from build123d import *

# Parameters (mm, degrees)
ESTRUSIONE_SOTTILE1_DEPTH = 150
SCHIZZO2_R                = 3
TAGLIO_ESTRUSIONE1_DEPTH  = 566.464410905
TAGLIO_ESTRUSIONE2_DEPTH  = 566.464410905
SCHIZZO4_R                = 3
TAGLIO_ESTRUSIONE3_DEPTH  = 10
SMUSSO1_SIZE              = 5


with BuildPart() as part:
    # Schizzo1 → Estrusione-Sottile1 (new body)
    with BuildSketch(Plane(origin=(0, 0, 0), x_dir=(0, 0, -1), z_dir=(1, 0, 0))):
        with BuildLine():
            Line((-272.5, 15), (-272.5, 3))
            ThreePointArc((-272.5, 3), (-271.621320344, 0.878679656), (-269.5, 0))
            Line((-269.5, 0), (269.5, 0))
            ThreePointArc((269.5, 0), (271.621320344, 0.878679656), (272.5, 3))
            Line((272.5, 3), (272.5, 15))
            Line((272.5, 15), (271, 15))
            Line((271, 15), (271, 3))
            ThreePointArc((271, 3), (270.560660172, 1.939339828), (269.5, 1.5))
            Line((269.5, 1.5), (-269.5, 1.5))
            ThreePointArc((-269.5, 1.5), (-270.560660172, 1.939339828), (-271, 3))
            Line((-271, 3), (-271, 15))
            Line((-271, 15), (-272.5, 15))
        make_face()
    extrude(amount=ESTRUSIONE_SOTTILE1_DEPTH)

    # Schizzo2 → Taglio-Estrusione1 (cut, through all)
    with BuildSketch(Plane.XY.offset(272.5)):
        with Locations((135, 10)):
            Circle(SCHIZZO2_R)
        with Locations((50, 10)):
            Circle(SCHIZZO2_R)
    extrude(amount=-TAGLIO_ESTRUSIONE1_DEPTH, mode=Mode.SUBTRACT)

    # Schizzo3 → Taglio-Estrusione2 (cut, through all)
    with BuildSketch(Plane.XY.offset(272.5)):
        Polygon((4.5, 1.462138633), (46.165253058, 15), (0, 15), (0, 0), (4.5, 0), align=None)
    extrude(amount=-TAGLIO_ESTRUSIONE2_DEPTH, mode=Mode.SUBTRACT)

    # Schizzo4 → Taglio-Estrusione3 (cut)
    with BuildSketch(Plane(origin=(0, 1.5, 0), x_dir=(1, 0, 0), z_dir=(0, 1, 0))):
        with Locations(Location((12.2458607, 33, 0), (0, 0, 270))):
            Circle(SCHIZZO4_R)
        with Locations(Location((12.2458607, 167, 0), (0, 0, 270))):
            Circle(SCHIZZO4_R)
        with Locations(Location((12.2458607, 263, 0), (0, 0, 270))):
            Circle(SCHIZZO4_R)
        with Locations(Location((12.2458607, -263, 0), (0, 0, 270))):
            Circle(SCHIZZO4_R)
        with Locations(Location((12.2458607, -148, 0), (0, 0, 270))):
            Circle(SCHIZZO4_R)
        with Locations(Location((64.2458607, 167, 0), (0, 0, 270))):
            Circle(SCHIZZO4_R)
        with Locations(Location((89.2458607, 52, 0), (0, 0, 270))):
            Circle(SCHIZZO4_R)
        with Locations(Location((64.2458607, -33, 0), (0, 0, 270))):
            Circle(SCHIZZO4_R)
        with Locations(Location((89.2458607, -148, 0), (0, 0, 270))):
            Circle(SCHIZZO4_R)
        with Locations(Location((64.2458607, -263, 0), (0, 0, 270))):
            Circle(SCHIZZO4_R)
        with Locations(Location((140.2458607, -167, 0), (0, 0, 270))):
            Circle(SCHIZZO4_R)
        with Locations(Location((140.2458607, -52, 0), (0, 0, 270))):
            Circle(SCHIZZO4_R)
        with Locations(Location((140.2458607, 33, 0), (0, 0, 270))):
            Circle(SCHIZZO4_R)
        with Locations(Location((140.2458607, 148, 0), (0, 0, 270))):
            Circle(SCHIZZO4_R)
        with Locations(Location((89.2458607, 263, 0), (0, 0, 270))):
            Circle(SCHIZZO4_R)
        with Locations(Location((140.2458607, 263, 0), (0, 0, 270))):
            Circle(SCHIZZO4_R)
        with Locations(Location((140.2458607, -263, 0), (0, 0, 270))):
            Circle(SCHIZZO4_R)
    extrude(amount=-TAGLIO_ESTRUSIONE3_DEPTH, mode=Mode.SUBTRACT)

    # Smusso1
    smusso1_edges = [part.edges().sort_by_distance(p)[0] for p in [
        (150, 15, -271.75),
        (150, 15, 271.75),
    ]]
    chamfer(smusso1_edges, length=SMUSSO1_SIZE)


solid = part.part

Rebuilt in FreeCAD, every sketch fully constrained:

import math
import FreeCAD as App
import Part
import Sketcher
from FreeCAD import Vector
Q = App.Units.Quantity


def edges_at(feature, points):
    """Names of the edges that pass closest to the given points."""
    edges = feature.Shape.Edges
    near = lambda p: min(range(len(edges)), key=lambda i: edges[i].distToShape(Part.Vertex(*p))[0])
    return sorted({f"Edge{near(p) + 1}" for p in points})

doc = App.newDocument("Part")
params = doc.addObject("Spreadsheet::Sheet", "Params")
for row, (alias, value) in enumerate([
    ("sketch1_radius", "3 mm"),
    ("sketch1_radius2", "1.5 mm"),
    ("sketch1_width", "12 mm"),
    ("sketch1_height", "539 mm"),
    ("pad1_length", "150 mm"),
    ("sketch2_diameter", "6 mm"),
    ("sketch3_height", "15 mm"),
    ("sketch3_width", "4.5 mm"),
    ("sketch4_diameter", "6 mm"),
    ("pocket3_length", "10 mm"),
    ("chamfer_size", "5 mm"),
], start=1):
    params.set(f"A{row}", alias)
    params.set(f"B{row}", "=" + value)
    params.setAlias(f"B{row}", alias)

body = doc.addObject("PartDesign::Body", "Body")

sketch1 = doc.addObject("Sketcher::SketchObject", "Sketch")
body.addObject(sketch1)
sketch1.AttachmentSupport = (doc.YZ_Plane, [""])
sketch1.MapMode = "FlatFace"
sketch1.addGeometry(Part.LineSegment(Vector(15, 272.5, 0), Vector(3, 272.5, 0)), False)
sketch1.addGeometry(Part.ArcOfCircle(Part.Circle(Vector(3, 269.5, 0), Vector(0, 0, 1), 3), math.radians(90), math.radians(180)), False)
sketch1.addGeometry(Part.LineSegment(Vector(0, 269.5, 0), Vector(0, -269.5, 0)), False)
sketch1.addGeometry(Part.ArcOfCircle(Part.Circle(Vector(3, -269.5, 0), Vector(0, 0, 1), 3), math.radians(180), math.radians(270)), False)
sketch1.addGeometry(Part.LineSegment(Vector(3, -272.5, 0), Vector(15, -272.5, 0)), False)
sketch1.addGeometry(Part.LineSegment(Vector(15, -272.5, 0), Vector(15, -271, 0)), False)
sketch1.addGeometry(Part.LineSegment(Vector(15, -271, 0), Vector(3, -271, 0)), False)
sketch1.addGeometry(Part.ArcOfCircle(Part.Circle(Vector(3, -269.5, 0), Vector(0, 0, 1), 1.5), math.radians(180), math.radians(270)), False)
sketch1.addGeometry(Part.LineSegment(Vector(1.5, -269.5, 0), Vector(1.5, 269.5, 0)), False)
sketch1.addGeometry(Part.ArcOfCircle(Part.Circle(Vector(3, 269.5, 0), Vector(0, 0, 1), 1.5), math.radians(90), math.radians(180)), False)
sketch1.addGeometry(Part.LineSegment(Vector(3, 271, 0), Vector(15, 271, 0)), False)
sketch1.addGeometry(Part.LineSegment(Vector(15, 271, 0), Vector(15, 272.5, 0)), False)
sketch1.addConstraint(Sketcher.Constraint("Tangent", 0, 2, 1, 1))
sketch1.addConstraint(Sketcher.Constraint("Tangent", 1, 2, 2, 1))
sketch1.addConstraint(Sketcher.Constraint("Tangent", 2, 2, 3, 1))
sketch1.addConstraint(Sketcher.Constraint("Tangent", 3, 2, 4, 1))
sketch1.addConstraint(Sketcher.Constraint("Coincident", 4, 2, 5, 1))
sketch1.addConstraint(Sketcher.Constraint("Coincident", 5, 2, 6, 1))
sketch1.addConstraint(Sketcher.Constraint("Tangent", 6, 2, 7, 2))
sketch1.addConstraint(Sketcher.Constraint("Tangent", 7, 1, 8, 1))
sketch1.addConstraint(Sketcher.Constraint("Tangent", 8, 2, 9, 2))
sketch1.addConstraint(Sketcher.Constraint("Tangent", 9, 1, 10, 1))
sketch1.addConstraint(Sketcher.Constraint("Coincident", 10, 2, 11, 1))
sketch1.addConstraint(Sketcher.Constraint("Coincident", 11, 2, 0, 1))
sketch1.addConstraint(Sketcher.Constraint("Horizontal", 0))
sketch1.addConstraint(Sketcher.Constraint("Vertical", 2))
sketch1.addConstraint(Sketcher.Constraint("Horizontal", 4))
sketch1.addConstraint(Sketcher.Constraint("Vertical", 5))
sketch1.addConstraint(Sketcher.Constraint("Horizontal", 6))
sketch1.addConstraint(Sketcher.Constraint("Vertical", 8))
sketch1.addConstraint(Sketcher.Constraint("Horizontal", 10))
sketch1.addConstraint(Sketcher.Constraint("Vertical", 11))
sketch1.addConstraint(Sketcher.Constraint("Coincident", 7, 3, 3, 3))
sketch1.addConstraint(Sketcher.Constraint("Coincident", 9, 3, 1, 3))
sketch1.addConstraint(Sketcher.Constraint("Equal", 1, 3))
sketch1.addConstraint(Sketcher.Constraint("Symmetric", 1, 2, 2, 2, -1, 1))
sketch1.addConstraint(Sketcher.Constraint("Vertical", 5, 2, 10, 2))
sketch1.addConstraint(Sketcher.Constraint("Radius", 1, 3.0))
sketch1.addConstraint(Sketcher.Constraint("Radius", 7, 1.5))
sketch1.addConstraint(Sketcher.Constraint("DistanceX", 0, 2, 0, 1, 12.0))
sketch1.addConstraint(Sketcher.Constraint("DistanceY", 2, 2, 2, 1, 539.0))
sketch1.setExpression("Constraints[25]", "Params.sketch1_radius")
sketch1.setExpression("Constraints[26]", "Params.sketch1_radius2")
sketch1.setExpression("Constraints[27]", "Params.sketch1_width")
sketch1.setExpression("Constraints[28]", "Params.sketch1_height")
pad1 = doc.addObject("PartDesign::Pad", "Pad")
body.addObject(pad1)
pad1.Profile = sketch1
pad1.setExpression("Length", "Params.pad1_length")

sketch2 = doc.addObject("Sketcher::SketchObject", "Sketch001")
body.addObject(sketch2)
sketch2.AttachmentSupport = (doc.XY_Plane, [""])
sketch2.MapMode = "FlatFace"
sketch2.AttachmentOffset = App.Placement(Vector(0, 0, 272.5), App.Rotation())
sketch2.addGeometry(Part.Circle(Vector(135, 10, 0), Vector(0, 0, 1), 3), False)
sketch2.addGeometry(Part.Circle(Vector(50, 10, 0), Vector(0, 0, 1), 3), False)
sketch2.addConstraint(Sketcher.Constraint("Equal", 0, 1))
sketch2.addConstraint(Sketcher.Constraint("Horizontal", 0, 3, 1, 3))
sketch2.addConstraint(Sketcher.Constraint("Diameter", 0, 6.0))
sketch2.addConstraint(Sketcher.Constraint("DistanceX", -1, 1, 0, 3, 135.0))
sketch2.addConstraint(Sketcher.Constraint("DistanceY", -1, 1, 0, 3, 10.0))
sketch2.addConstraint(Sketcher.Constraint("DistanceX", -1, 1, 1, 3, 50.0))
sketch2.setExpression("Constraints[2]", "Params.sketch2_diameter")
pocket1 = doc.addObject("PartDesign::Pocket", "Pocket")
body.addObject(pocket1)
pocket1.Profile = sketch2
pocket1.Type = "ThroughAll"

sketch3 = doc.addObject("Sketcher::SketchObject", "Sketch002")
body.addObject(sketch3)
sketch3.AttachmentSupport = (doc.XY_Plane, [""])
sketch3.MapMode = "FlatFace"
sketch3.AttachmentOffset = App.Placement(Vector(0, 0, 272.5), App.Rotation())
sketch3.addGeometry(Part.LineSegment(Vector(4.5, 1.5, 0), Vector(46.2, 15, 0)), False)
sketch3.addGeometry(Part.LineSegment(Vector(46.2, 15, 0), Vector(0, 15, 0)), False)
sketch3.addGeometry(Part.LineSegment(Vector(0, 15, 0), Vector(0, 0, 0)), False)
sketch3.addGeometry(Part.LineSegment(Vector(0, 0, 0), Vector(4.5, 0, 0)), False)
sketch3.addGeometry(Part.LineSegment(Vector(4.5, 0, 0), Vector(4.5, 1.5, 0)), False)
sketch3.addConstraint(Sketcher.Constraint("Coincident", 0, 2, 1, 1))
sketch3.addConstraint(Sketcher.Constraint("Coincident", 1, 2, 2, 1))
sketch3.addConstraint(Sketcher.Constraint("Coincident", 2, 2, 3, 1))
sketch3.addConstraint(Sketcher.Constraint("Coincident", 3, 2, 4, 1))
sketch3.addConstraint(Sketcher.Constraint("Coincident", 4, 2, 0, 1))
sketch3.addConstraint(Sketcher.Constraint("Horizontal", 1))
sketch3.addConstraint(Sketcher.Constraint("Vertical", 2))
sketch3.addConstraint(Sketcher.Constraint("Horizontal", 3))
sketch3.addConstraint(Sketcher.Constraint("Vertical", 4))
sketch3.addConstraint(Sketcher.Constraint("Coincident", 2, 2, -1, 1))
sketch3.addConstraint(Sketcher.Constraint("DistanceY", 2, 2, 2, 1, 15.0))
sketch3.addConstraint(Sketcher.Constraint("Angle", 0, Q("18 deg")))
sketch3.addConstraint(Sketcher.Constraint("DistanceX", 3, 1, 3, 2, 4.5))
sketch3.addConstraint(Sketcher.Constraint("DistanceY", 4, 1, 4, 2, 1.462139))
sketch3.setExpression("Constraints[10]", "Params.sketch3_height")
sketch3.setExpression("Constraints[12]", "Params.sketch3_width")
pocket2 = doc.addObject("PartDesign::Pocket", "Pocket001")
body.addObject(pocket2)
pocket2.Profile = sketch3
pocket2.Type = "ThroughAll"

sketch4 = doc.addObject("Sketcher::SketchObject", "Sketch003")
body.addObject(sketch4)
sketch4.AttachmentSupport = (doc.XZ_Plane, [""])
sketch4.MapMode = "FlatFace"
sketch4.AttachmentOffset = App.Placement(Vector(0, 0, -1.5), App.Rotation())
sketch4.addGeometry(Part.Circle(Vector(12.2, -33, 0), Vector(0, 0, 1), 3), False)
sketch4.addGeometry(Part.Circle(Vector(12.2, -167, 0), Vector(0, 0, 1), 3), False)
sketch4.addGeometry(Part.Circle(Vector(12.2, -263, 0), Vector(0, 0, 1), 3), False)
sketch4.addGeometry(Part.Circle(Vector(12.2, 263, 0), Vector(0, 0, 1), 3), False)
sketch4.addGeometry(Part.Circle(Vector(12.2, 148, 0), Vector(0, 0, 1), 3), False)
sketch4.addGeometry(Part.Circle(Vector(64.2, -167, 0), Vector(0, 0, 1), 3), False)
sketch4.addGeometry(Part.Circle(Vector(89.2, -52, 0), Vector(0, 0, 1), 3), False)
sketch4.addGeometry(Part.Circle(Vector(64.2, 33, 0), Vector(0, 0, 1), 3), False)
sketch4.addGeometry(Part.Circle(Vector(89.2, 148, 0), Vector(0, 0, 1), 3), False)
sketch4.addGeometry(Part.Circle(Vector(64.2, 263, 0), Vector(0, 0, 1), 3), False)
sketch4.addGeometry(Part.Circle(Vector(140.2, 167, 0), Vector(0, 0, 1), 3), False)
sketch4.addGeometry(Part.Circle(Vector(140.2, 52, 0), Vector(0, 0, 1), 3), False)
sketch4.addGeometry(Part.Circle(Vector(140.2, -33, 0), Vector(0, 0, 1), 3), False)
sketch4.addGeometry(Part.Circle(Vector(140.2, -148, 0), Vector(0, 0, 1), 3), False)
sketch4.addGeometry(Part.Circle(Vector(89.2, -263, 0), Vector(0, 0, 1), 3), False)
sketch4.addGeometry(Part.Circle(Vector(140.2, -263, 0), Vector(0, 0, 1), 3), False)
sketch4.addGeometry(Part.Circle(Vector(140.2, 263, 0), Vector(0, 0, 1), 3), False)
sketch4.addConstraint(Sketcher.Constraint("Equal", 0, 1))
sketch4.addConstraint(Sketcher.Constraint("Equal", 1, 2))
sketch4.addConstraint(Sketcher.Constraint("Equal", 2, 3))
sketch4.addConstraint(Sketcher.Constraint("Equal", 3, 4))
sketch4.addConstraint(Sketcher.Constraint("Equal", 4, 5))
sketch4.addConstraint(Sketcher.Constraint("Equal", 5, 6))
sketch4.addConstraint(Sketcher.Constraint("Equal", 6, 7))
sketch4.addConstraint(Sketcher.Constraint("Equal", 7, 8))
sketch4.addConstraint(Sketcher.Constraint("Equal", 8, 9))
sketch4.addConstraint(Sketcher.Constraint("Equal", 9, 10))
sketch4.addConstraint(Sketcher.Constraint("Equal", 10, 11))
sketch4.addConstraint(Sketcher.Constraint("Equal", 11, 12))
sketch4.addConstraint(Sketcher.Constraint("Equal", 12, 13))
sketch4.addConstraint(Sketcher.Constraint("Equal", 13, 14))
sketch4.addConstraint(Sketcher.Constraint("Equal", 14, 15))
sketch4.addConstraint(Sketcher.Constraint("Equal", 15, 16))
sketch4.addConstraint(Sketcher.Constraint("Symmetric", 2, 3, 3, 3, -1))
sketch4.addConstraint(Sketcher.Constraint("Symmetric", 15, 3, 16, 3, -1))
sketch4.addConstraint(Sketcher.Constraint("Horizontal", 1, 3, 5, 3))
sketch4.addConstraint(Sketcher.Constraint("Horizontal", 4, 3, 8, 3))
sketch4.addConstraint(Sketcher.Constraint("Horizontal", 3, 3, 9, 3))
sketch4.addConstraint(Sketcher.Constraint("Horizontal", 0, 3, 12, 3))
sketch4.addConstraint(Sketcher.Constraint("Horizontal", 2, 3, 14, 3))
sketch4.addConstraint(Sketcher.Constraint("Horizontal", 14, 3, 15, 3))
sketch4.addConstraint(Sketcher.Constraint("Vertical", 0, 3, 1, 3))
sketch4.addConstraint(Sketcher.Constraint("Vertical", 1, 3, 2, 3))
sketch4.addConstraint(Sketcher.Constraint("Vertical", 3, 3, 4, 3))
sketch4.addConstraint(Sketcher.Constraint("Vertical", 5, 3, 7, 3))
sketch4.addConstraint(Sketcher.Constraint("Vertical", 6, 3, 8, 3))
sketch4.addConstraint(Sketcher.Constraint("Vertical", 7, 3, 9, 3))
sketch4.addConstraint(Sketcher.Constraint("Vertical", 10, 3, 11, 3))
sketch4.addConstraint(Sketcher.Constraint("Vertical", 11, 3, 12, 3))
sketch4.addConstraint(Sketcher.Constraint("Vertical", 12, 3, 13, 3))
sketch4.addConstraint(Sketcher.Constraint("Vertical", 8, 3, 14, 3))
sketch4.addConstraint(Sketcher.Constraint("Vertical", 13, 3, 15, 3))
sketch4.addConstraint(Sketcher.Constraint("Diameter", 0, 6.0))
sketch4.addConstraint(Sketcher.Constraint("DistanceY", 0, 3, -1, 1, 33.0))
sketch4.addConstraint(Sketcher.Constraint("DistanceY", 1, 3, -1, 1, 167.0))
sketch4.addConstraint(Sketcher.Constraint("DistanceY", 2, 3, -1, 1, 263.0))
sketch4.addConstraint(Sketcher.Constraint("DistanceY", -1, 1, 4, 3, 148.0))
sketch4.addConstraint(Sketcher.Constraint("DistanceY", 6, 3, -1, 1, 52.0))
sketch4.addConstraint(Sketcher.Constraint("DistanceY", -1, 1, 7, 3, 33.0))
sketch4.addConstraint(Sketcher.Constraint("DistanceY", -1, 1, 10, 3, 167.0))
sketch4.addConstraint(Sketcher.Constraint("DistanceY", -1, 1, 11, 3, 52.0))
sketch4.addConstraint(Sketcher.Constraint("DistanceY", 13, 3, -1, 1, 148.0))
sketch4.addConstraint(Sketcher.Constraint("DistanceX", 1, 3, 5, 3, 52.0))
sketch4.addConstraint(Sketcher.Constraint("DistanceX", 0, 3, 6, 3, 77.0))
sketch4.addConstraint(Sketcher.Constraint("DistanceX", 8, 3, 10, 3, 51.0))
sketch4.addConstraint(Sketcher.Constraint("DistanceX", -1, 1, 0, 3, 12.245861))
sketch4.setExpression("Constraints[35]", "Params.sketch4_diameter")
pocket3 = doc.addObject("PartDesign::Pocket", "Pocket002")
body.addObject(pocket3)
pocket3.Profile = sketch4
pocket3.setExpression("Length", "Params.pocket3_length")
pocket3.Reversed = True
doc.recompute()

chamfer = doc.addObject("PartDesign::Chamfer", "Chamfer")
body.addObject(chamfer)
chamfer.Base = (pocket3, edges_at(pocket3, [(150, 15, -271.75), (150, 15, 271.75)]))
chamfer.setExpression("Size", "Params.chamfer_size")

doc.recompute()
